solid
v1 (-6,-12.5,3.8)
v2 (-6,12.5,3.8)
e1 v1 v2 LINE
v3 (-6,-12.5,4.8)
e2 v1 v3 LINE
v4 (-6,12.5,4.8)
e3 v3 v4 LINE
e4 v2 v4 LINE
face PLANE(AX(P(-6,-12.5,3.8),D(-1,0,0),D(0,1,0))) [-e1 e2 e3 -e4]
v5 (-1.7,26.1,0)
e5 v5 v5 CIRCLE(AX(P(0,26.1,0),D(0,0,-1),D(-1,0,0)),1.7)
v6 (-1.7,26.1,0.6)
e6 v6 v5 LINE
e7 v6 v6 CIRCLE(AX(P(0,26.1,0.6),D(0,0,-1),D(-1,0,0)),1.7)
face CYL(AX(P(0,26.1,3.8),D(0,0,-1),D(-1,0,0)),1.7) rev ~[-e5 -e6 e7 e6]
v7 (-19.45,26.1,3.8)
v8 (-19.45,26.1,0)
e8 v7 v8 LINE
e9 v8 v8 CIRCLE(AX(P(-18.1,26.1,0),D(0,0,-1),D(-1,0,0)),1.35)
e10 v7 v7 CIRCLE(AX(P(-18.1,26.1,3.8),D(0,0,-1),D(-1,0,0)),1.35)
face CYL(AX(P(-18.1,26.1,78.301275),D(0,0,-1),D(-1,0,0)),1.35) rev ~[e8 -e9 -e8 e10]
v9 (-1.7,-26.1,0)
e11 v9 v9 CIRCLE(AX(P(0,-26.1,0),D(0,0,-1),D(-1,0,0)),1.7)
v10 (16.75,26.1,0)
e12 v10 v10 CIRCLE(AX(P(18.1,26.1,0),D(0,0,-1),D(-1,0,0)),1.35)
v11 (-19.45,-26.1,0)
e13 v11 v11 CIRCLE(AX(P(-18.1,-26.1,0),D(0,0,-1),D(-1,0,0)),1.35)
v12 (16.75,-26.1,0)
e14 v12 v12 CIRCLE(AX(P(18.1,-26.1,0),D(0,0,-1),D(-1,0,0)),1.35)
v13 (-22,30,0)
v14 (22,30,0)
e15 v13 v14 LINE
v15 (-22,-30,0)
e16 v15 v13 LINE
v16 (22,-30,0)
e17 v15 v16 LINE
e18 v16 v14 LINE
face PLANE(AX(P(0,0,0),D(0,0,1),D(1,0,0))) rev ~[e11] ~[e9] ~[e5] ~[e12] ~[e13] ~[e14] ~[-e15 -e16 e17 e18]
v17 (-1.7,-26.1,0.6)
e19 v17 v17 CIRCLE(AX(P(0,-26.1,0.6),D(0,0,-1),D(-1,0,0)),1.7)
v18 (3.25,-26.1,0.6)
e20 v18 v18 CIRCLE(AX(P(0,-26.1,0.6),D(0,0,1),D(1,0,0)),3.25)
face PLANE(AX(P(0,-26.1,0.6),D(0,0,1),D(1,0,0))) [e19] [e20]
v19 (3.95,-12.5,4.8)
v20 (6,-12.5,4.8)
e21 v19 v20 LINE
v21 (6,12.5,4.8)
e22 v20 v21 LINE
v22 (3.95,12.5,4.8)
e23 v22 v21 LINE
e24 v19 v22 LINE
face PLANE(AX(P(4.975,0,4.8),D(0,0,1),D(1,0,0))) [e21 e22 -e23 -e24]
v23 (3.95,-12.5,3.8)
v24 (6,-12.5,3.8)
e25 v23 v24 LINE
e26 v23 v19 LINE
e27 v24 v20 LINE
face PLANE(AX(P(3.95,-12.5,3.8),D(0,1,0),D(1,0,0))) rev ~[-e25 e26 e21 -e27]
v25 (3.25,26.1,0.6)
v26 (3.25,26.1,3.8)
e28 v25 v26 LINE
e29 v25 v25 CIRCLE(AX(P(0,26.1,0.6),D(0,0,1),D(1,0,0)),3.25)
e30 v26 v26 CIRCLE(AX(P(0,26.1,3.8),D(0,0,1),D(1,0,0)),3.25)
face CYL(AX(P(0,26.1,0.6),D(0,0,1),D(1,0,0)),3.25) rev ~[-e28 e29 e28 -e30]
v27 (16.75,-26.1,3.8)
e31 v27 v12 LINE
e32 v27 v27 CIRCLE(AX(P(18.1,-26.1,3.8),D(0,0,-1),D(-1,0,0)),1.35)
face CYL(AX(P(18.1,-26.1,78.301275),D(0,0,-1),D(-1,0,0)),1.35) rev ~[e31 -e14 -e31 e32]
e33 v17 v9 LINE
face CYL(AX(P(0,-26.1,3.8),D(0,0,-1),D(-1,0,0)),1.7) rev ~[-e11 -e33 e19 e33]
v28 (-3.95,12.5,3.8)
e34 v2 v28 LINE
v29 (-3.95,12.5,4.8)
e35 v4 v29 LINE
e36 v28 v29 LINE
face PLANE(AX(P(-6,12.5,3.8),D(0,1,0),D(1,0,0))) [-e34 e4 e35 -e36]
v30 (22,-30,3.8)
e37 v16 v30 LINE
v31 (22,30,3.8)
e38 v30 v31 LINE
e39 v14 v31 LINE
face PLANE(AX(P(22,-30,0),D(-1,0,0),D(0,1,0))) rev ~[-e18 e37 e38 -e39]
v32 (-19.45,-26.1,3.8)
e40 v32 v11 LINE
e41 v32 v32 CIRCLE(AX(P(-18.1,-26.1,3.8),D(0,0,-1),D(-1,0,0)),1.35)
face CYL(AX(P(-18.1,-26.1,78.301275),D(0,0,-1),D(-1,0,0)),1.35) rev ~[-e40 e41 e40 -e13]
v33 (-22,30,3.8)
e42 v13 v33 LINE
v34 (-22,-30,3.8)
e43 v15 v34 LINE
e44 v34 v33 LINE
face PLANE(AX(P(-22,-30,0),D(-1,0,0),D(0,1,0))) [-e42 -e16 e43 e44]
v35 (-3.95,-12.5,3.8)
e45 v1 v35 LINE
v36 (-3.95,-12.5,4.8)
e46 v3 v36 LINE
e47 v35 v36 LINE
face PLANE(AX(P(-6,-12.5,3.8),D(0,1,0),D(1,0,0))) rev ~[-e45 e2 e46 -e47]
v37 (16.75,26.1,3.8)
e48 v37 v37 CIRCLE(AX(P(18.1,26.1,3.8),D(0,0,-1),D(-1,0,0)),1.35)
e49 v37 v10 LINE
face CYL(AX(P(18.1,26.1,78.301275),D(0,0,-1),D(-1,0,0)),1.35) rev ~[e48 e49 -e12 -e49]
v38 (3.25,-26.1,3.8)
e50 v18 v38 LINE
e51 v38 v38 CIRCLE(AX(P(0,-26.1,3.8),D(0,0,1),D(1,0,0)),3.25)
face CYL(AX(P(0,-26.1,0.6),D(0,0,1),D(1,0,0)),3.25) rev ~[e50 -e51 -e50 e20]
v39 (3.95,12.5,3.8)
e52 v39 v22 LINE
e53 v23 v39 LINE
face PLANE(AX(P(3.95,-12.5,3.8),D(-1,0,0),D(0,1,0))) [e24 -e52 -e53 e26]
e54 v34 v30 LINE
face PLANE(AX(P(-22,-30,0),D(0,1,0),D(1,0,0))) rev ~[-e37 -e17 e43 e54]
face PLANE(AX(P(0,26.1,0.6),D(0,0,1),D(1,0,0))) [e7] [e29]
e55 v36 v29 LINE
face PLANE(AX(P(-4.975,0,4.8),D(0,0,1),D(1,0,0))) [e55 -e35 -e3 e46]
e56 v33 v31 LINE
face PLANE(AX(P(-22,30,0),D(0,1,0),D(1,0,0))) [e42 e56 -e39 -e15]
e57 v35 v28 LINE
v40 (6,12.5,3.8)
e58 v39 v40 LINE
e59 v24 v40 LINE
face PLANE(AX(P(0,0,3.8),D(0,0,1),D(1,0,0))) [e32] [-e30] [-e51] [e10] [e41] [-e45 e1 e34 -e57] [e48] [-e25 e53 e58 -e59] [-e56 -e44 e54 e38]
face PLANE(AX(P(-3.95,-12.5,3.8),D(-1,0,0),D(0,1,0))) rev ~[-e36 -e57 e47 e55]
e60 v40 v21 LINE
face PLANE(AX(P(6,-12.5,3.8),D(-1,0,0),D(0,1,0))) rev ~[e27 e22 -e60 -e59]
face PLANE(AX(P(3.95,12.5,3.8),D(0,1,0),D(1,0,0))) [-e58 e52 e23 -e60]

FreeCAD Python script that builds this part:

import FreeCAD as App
import Part
import Sketcher

V = App.Vector

doc = App.newDocument("Part")
body = doc.addObject("PartDesign::Body", "Body")

sketch1 = doc.addObject("Sketcher::SketchObject", "Sketch")
body.addObject(sketch1)
sketch1.AttachmentSupport = (doc.XY_Plane, [""])
sketch1.MapMode = "FlatFace"
sketch1.addGeometry(Part.LineSegment(V(-22, 30, 0), V(-22, -30, 0)), False)
sketch1.addGeometry(Part.LineSegment(V(-22, -30, 0), V(22, -30, 0)), False)
sketch1.addGeometry(Part.LineSegment(V(22, -30, 0), V(22, 30, 0)), False)
sketch1.addGeometry(Part.LineSegment(V(22, 30, 0), V(-22, 30, 0)), False)
sketch1.addConstraint(Sketcher.Constraint("Coincident", 0, 2, 1, 1))
sketch1.addConstraint(Sketcher.Constraint("Coincident", 1, 2, 2, 1))
sketch1.addConstraint(Sketcher.Constraint("Coincident", 2, 2, 3, 1))
sketch1.addConstraint(Sketcher.Constraint("Coincident", 3, 2, 0, 1))
sketch1.addConstraint(Sketcher.Constraint("Vertical", 0))
sketch1.addConstraint(Sketcher.Constraint("Horizontal", 1))
sketch1.addConstraint(Sketcher.Constraint("Vertical", 2))
sketch1.addConstraint(Sketcher.Constraint("Horizontal", 3))
sketch1.addConstraint(Sketcher.Constraint("Symmetric", 0, 2, 2, 2, -1, 1))
sketch1.addConstraint(Sketcher.Constraint("DistanceX", 1, 1, 1, 2, 44.0))
sketch1.addConstraint(Sketcher.Constraint("DistanceY", 0, 2, 0, 1, 60.0))
pad1 = doc.addObject("PartDesign::Pad", "Pad")
body.addObject(pad1)
pad1.Profile = sketch1
pad1.Length = 3.8

sketch2 = doc.addObject("Sketcher::SketchObject", "Sketch001")
body.addObject(sketch2)
sketch2.AttachmentSupport = (doc.XY_Plane, [""])
sketch2.MapMode = "FlatFace"
sketch2.AttachmentOffset = App.Placement(V(0, 0, 3.8), App.Rotation())
sketch2.addGeometry(Part.Circle(V(-18.1, 26.1, 0), V(0, 0, 1), 1.35), False)
sketch2.addGeometry(Part.Circle(V(18.1, 26.1, 0), V(0, 0, 1), 1.35), False)
sketch2.addGeometry(Part.Circle(V(18.1, -26.1, 0), V(0, 0, 1), 1.35), False)
sketch2.addGeometry(Part.Circle(V(-18.1, -26.1, 0), V(0, 0, 1), 1.35), False)
sketch2.addConstraint(Sketcher.Constraint("Equal", 0, 1))
sketch2.addConstraint(Sketcher.Constraint("Equal", 1, 2))
sketch2.addConstraint(Sketcher.Constraint("Equal", 2, 3))
sketch2.addConstraint(Sketcher.Constraint("Symmetric", 0, 3, 2, 3, -1, 1))
sketch2.addConstraint(Sketcher.Constraint("Symmetric", 1, 3, 3, 3, -1, 1))
sketch2.addConstraint(Sketcher.Constraint("Symmetric", 0, 3, 1, 3, -2))
sketch2.addConstraint(Sketcher.Constraint("Diameter", 0, 2.7))
sketch2.addConstraint(Sketcher.Constraint("DistanceX", 0, 3, -1, 1, 18.1))
sketch2.addConstraint(Sketcher.Constraint("DistanceY", -1, 1, 0, 3, 26.1))
doc.recompute()
hole = doc.addObject("PartDesign::Hole", "Hole")
body.addObject(hole)
hole.Profile = sketch2
hole.ThreadType = "None"
hole.Diameter = 2.7
hole.DepthType = "ThroughAll"

sketch3 = doc.addObject("Sketcher::SketchObject", "Sketch002")
body.addObject(sketch3)
sketch3.AttachmentSupport = (doc.XY_Plane, [""])
sketch3.MapMode = "FlatFace"
sketch3.AttachmentOffset = App.Placement(V(0, 0, 3.8), App.Rotation())
sketch3.addGeometry(Part.Circle(V(0, 26.1, 0), V(0, 0, 1), 1.7), False)
sketch3.addGeometry(Part.Circle(V(0, -26.1, 0), V(0, 0, 1), 1.7), False)
sketch3.addConstraint(Sketcher.Constraint("Equal", 0, 1))
sketch3.addConstraint(Sketcher.Constraint("Symmetric", 0, 3, 1, 3, -1, 1))
sketch3.addConstraint(Sketcher.Constraint("PointOnObject", 0, 3, -2))
sketch3.addConstraint(Sketcher.Constraint("Diameter", 0, 3.4))
sketch3.addConstraint(Sketcher.Constraint("DistanceY", -1, 1, 0, 3, 26.1))
doc.recompute()
hole2 = doc.addObject("PartDesign::Hole", "Hole001")
body.addObject(hole2)
hole2.Profile = sketch3
hole2.ThreadType = "None"
hole2.Diameter = 3.4
hole2.DepthType = "ThroughAll"
hole2.HoleCutType = "Counterbore"
hole2.HoleCutDiameter = 6.5
hole2.HoleCutDepth = 3.2

sketch4 = doc.addObject("Sketcher::SketchObject", "Sketch003")
body.addObject(sketch4)
sketch4.AttachmentSupport = (doc.XY_Plane, [""])
sketch4.MapMode = "FlatFace"
sketch4.AttachmentOffset = App.Placement(V(0, 0, 3.8), App.Rotation())
sketch4.addGeometry(Part.LineSegment(V(-6, 12.5, 0), V(-6, -12.5, 0)), False)
sketch4.addGeometry(Part.LineSegment(V(-6, -12.5, 0), V(-3.95, -12.5, 0)), False)
sketch4.addGeometry(Part.LineSegment(V(-3.95, -12.5, 0), V(-3.95, 12.5, 0)), False)
sketch4.addGeometry(Part.LineSegment(V(-3.95, 12.5, 0), V(-6, 12.5, 0)), False)
sketch4.addGeometry(Part.LineSegment(V(3.95, 12.5, 0), V(3.95, -12.5, 0)), False)
sketch4.addGeometry(Part.LineSegment(V(3.95, -12.5, 0), V(6, -12.5, 0)), False)
sketch4.addGeometry(Part.LineSegment(V(6, -12.5, 0), V(6, 12.5, 0)), False)
sketch4.addGeometry(Part.LineSegment(V(6, 12.5, 0), V(3.95, 12.5, 0)), False)
sketch4.addConstraint(Sketcher.Constraint("Coincident", 0, 2, 1, 1))
sketch4.addConstraint(Sketcher.Constraint("Coincident", 1, 2, 2, 1))
sketch4.addConstraint(Sketcher.Constraint("Coincident", 2, 2, 3, 1))
sketch4.addConstraint(Sketcher.Constraint("Coincident", 3, 2, 0, 1))
sketch4.addConstraint(Sketcher.Constraint("Coincident", 4, 2, 5, 1))
sketch4.addConstraint(Sketcher.Constraint("Coincident", 5, 2, 6, 1))
sketch4.addConstraint(Sketcher.Constraint("Coincident", 6, 2, 7, 1))
sketch4.addConstraint(Sketcher.Constraint("Coincident", 7, 2, 4, 1))
sketch4.addConstraint(Sketcher.Constraint("Vertical", 0))
sketch4.addConstraint(Sketcher.Constraint("Horizontal", 1))
sketch4.addConstraint(Sketcher.Constraint("Vertical", 2))
sketch4.addConstraint(Sketcher.Constraint("Horizontal", 3))
sketch4.addConstraint(Sketcher.Constraint("Vertical", 4))
sketch4.addConstraint(Sketcher.Constraint("Horizontal", 5))
sketch4.addConstraint(Sketcher.Constraint("Vertical", 6))
sketch4.addConstraint(Sketcher.Constraint("Horizontal", 7))
sketch4.addConstraint(Sketcher.Constraint("Symmetric", 2, 2, 4, 2, -1, 1))
sketch4.addConstraint(Sketcher.Constraint("Symmetric", 0, 2, 6, 2, -1, 1))
sketch4.addConstraint(Sketcher.Constraint("Horizontal", 1, 2, 4, 2))
sketch4.addConstraint(Sketcher.Constraint("DistanceY", 0, 2, 0, 1, 25.0))
sketch4.addConstraint(Sketcher.Constraint("DistanceX", 0, 2, -1, 1, 6.0))
sketch4.addConstraint(Sketcher.Constraint("DistanceX", 1, 1, 1, 2, 2.05))
pad2 = doc.addObject("PartDesign::Pad", "Pad001")
body.addObject(pad2)
pad2.Profile = sketch4
pad2.Length = 1

doc.recompute()
